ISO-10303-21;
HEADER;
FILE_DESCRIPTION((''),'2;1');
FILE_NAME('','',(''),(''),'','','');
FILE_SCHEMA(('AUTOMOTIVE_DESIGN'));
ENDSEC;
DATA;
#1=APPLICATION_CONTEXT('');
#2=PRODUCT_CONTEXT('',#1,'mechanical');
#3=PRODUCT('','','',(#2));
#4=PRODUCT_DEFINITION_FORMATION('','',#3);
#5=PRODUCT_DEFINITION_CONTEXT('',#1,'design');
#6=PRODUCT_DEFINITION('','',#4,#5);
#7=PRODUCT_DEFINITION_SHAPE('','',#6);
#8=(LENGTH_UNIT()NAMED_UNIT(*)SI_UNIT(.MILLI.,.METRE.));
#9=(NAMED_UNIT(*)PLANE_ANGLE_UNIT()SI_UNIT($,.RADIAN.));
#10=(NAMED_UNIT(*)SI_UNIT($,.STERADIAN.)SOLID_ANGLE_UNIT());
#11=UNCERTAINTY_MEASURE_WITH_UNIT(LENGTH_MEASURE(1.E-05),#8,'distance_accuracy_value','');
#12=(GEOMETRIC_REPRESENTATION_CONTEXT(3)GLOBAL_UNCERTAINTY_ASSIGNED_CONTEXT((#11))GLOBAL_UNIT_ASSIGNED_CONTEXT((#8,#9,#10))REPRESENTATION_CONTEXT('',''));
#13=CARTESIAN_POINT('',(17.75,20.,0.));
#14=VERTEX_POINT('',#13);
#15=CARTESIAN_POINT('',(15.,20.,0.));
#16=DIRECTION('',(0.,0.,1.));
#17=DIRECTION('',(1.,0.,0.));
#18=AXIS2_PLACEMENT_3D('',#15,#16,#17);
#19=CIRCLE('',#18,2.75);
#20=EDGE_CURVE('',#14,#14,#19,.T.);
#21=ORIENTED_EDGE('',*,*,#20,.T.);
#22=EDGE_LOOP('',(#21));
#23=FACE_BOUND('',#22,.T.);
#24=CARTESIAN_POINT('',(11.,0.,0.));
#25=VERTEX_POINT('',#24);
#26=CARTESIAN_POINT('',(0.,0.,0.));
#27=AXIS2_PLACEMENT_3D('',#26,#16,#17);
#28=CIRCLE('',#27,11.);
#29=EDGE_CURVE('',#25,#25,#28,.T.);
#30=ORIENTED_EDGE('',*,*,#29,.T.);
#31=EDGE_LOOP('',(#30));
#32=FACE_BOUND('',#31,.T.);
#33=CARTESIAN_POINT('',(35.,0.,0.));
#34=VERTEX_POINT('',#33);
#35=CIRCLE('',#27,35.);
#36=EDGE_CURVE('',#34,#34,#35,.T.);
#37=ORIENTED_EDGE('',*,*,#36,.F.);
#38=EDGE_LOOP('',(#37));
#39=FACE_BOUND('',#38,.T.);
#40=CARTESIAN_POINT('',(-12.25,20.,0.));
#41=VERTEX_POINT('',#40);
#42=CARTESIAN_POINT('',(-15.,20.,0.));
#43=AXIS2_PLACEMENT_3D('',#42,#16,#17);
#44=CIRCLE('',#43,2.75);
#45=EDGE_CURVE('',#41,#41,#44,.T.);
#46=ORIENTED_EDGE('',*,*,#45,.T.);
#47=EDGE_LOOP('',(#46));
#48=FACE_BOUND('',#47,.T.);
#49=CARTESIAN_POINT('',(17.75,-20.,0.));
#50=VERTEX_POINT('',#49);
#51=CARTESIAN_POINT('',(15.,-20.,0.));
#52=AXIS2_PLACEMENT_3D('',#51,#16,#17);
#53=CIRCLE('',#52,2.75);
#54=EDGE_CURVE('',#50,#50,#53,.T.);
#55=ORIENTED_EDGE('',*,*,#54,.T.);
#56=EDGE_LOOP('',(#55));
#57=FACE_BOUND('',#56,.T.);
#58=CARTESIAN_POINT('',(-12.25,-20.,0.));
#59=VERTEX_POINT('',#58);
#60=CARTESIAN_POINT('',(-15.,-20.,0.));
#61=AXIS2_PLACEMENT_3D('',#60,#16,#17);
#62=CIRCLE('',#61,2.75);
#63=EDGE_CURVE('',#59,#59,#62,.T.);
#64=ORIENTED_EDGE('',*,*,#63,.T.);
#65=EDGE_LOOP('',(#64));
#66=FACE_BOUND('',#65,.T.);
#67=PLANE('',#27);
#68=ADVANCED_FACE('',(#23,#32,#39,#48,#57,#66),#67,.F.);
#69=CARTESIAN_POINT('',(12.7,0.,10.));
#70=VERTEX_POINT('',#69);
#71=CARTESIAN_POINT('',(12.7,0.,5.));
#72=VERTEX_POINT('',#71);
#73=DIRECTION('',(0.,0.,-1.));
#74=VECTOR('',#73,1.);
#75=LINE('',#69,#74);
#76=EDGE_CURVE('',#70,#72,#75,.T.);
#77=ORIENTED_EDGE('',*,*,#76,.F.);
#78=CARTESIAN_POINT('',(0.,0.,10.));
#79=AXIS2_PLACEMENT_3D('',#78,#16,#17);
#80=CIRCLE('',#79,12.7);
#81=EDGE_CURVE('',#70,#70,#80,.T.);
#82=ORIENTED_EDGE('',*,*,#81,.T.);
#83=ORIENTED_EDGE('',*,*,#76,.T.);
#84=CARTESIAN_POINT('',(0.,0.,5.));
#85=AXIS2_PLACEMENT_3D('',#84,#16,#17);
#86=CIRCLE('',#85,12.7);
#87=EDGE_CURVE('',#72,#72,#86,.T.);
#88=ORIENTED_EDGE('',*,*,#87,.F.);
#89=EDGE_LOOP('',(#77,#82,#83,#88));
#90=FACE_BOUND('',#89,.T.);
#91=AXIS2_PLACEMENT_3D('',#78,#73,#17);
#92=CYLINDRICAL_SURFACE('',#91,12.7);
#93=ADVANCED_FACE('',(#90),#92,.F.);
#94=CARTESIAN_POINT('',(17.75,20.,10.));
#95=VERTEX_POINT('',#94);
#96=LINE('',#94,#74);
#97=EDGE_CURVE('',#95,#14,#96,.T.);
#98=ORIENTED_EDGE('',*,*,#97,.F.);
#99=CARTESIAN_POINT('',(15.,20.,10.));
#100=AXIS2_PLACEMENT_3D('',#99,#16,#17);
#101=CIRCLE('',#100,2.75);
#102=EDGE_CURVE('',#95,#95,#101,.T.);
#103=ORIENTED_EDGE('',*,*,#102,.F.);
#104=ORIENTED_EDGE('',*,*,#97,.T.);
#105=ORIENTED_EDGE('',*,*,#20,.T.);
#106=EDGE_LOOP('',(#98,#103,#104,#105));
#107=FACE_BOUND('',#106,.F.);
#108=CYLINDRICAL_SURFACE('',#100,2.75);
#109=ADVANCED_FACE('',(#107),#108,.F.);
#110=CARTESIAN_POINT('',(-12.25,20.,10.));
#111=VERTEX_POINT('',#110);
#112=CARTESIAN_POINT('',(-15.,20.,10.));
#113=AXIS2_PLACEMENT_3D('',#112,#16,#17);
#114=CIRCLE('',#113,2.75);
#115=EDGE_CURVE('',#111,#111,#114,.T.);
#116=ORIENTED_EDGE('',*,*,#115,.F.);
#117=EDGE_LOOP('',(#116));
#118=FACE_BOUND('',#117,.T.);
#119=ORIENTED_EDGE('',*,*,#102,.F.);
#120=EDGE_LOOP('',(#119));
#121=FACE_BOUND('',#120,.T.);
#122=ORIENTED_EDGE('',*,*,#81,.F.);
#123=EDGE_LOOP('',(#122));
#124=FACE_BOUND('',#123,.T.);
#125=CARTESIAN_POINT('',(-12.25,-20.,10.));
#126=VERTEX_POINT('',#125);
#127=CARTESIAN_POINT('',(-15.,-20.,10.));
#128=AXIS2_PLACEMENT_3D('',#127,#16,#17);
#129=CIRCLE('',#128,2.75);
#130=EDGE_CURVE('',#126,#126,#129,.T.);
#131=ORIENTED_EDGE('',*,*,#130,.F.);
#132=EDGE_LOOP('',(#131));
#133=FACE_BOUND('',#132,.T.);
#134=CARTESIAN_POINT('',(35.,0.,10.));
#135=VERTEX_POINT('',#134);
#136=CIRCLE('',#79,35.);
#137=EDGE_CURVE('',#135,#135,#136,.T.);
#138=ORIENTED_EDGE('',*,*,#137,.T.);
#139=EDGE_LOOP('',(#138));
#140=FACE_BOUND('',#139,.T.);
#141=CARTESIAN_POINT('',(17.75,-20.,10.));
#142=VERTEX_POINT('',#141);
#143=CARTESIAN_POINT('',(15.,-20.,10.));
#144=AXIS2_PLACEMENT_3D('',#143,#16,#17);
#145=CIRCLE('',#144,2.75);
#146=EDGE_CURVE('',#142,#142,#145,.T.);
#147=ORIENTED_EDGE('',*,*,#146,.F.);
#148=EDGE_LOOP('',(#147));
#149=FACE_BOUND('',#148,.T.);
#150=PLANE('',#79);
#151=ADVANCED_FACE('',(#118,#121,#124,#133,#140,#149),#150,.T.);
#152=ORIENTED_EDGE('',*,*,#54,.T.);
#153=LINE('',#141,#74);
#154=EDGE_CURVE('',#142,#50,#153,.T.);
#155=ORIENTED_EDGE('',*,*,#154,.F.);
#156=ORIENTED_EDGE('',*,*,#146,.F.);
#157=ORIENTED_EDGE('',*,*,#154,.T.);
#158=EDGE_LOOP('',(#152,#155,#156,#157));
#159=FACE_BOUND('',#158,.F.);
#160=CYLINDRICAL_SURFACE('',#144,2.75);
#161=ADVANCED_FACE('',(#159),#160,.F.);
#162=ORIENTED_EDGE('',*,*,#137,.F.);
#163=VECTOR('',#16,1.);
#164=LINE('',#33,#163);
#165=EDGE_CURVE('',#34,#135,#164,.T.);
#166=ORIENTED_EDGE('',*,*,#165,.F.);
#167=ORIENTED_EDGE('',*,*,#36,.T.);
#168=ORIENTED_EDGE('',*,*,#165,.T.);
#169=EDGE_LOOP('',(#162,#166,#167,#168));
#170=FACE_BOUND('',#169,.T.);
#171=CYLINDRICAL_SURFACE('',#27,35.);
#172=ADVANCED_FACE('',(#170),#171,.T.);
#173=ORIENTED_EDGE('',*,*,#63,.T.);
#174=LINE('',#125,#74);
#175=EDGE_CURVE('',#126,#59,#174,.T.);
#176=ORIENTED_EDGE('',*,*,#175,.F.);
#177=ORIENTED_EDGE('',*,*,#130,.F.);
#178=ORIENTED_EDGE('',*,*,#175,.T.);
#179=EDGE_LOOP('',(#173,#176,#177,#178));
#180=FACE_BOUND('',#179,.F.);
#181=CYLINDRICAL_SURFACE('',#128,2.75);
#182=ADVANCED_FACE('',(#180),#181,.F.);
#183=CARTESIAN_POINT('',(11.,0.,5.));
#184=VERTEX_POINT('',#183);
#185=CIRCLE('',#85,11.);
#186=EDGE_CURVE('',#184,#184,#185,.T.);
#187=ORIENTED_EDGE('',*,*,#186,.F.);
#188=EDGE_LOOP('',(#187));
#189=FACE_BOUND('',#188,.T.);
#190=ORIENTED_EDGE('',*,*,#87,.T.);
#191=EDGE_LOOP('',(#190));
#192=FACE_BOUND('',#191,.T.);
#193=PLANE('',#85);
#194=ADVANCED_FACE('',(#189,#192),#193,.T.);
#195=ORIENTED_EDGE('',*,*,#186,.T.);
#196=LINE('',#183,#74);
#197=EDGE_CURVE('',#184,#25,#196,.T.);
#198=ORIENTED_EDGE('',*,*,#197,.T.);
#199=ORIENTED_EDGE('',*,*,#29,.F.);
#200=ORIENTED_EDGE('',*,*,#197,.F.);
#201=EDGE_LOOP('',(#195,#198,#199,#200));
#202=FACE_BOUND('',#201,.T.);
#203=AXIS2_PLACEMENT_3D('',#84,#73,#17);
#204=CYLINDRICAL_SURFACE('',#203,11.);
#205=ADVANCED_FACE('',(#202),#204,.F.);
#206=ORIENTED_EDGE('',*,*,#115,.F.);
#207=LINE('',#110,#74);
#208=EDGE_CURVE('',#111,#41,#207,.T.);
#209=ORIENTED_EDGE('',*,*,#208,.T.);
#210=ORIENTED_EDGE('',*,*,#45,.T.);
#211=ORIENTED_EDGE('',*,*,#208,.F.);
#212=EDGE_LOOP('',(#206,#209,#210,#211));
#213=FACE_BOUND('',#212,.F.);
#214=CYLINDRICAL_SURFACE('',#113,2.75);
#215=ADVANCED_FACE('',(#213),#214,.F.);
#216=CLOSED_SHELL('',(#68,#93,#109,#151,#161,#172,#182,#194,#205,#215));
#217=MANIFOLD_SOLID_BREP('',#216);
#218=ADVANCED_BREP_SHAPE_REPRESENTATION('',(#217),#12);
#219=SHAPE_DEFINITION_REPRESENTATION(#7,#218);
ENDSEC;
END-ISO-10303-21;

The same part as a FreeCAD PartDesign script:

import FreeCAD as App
import Part
import Sketcher
from FreeCAD import Vector

doc = App.newDocument("Part")
body = doc.addObject("PartDesign::Body", "Body")

# Sketch on XZ plane
sketch1 = body.newObject("Sketcher::SketchObject", "Sketch")
sketch1.AttachmentSupport = (doc.getObject("XZ_Plane"), [""])
sketch1.MapMode = "FlatFace"
sketch1.addGeometry(Part.LineSegment(Vector(11, 5, 0), Vector(11, 0, 0)), False)
sketch1.addGeometry(Part.LineSegment(Vector(11, 0, 0), Vector(35, 0, 0)), False)
sketch1.addGeometry(Part.LineSegment(Vector(35, 0, 0), Vector(35, 10, 0)), False)
sketch1.addGeometry(Part.LineSegment(Vector(35, 10, 0), Vector(12.7, 10, 0)), False)
sketch1.addGeometry(Part.LineSegment(Vector(12.7, 10, 0), Vector(12.7, 5, 0)), False)
sketch1.addGeometry(Part.LineSegment(Vector(12.7, 5, 0), Vector(11, 5, 0)), False)
sketch1.addConstraint(Sketcher.Constraint("Coincident", 0, 2, 1, 1))
sketch1.addConstraint(Sketcher.Constraint("Coincident", 1, 2, 2, 1))
sketch1.addConstraint(Sketcher.Constraint("Coincident", 2, 2, 3, 1))
sketch1.addConstraint(Sketcher.Constraint("Coincident", 3, 2, 4, 1))
sketch1.addConstraint(Sketcher.Constraint("Coincident", 4, 2, 5, 1))
sketch1.addConstraint(Sketcher.Constraint("Coincident", 5, 2, 0, 1))
sketch1.addConstraint(Sketcher.Constraint("Vertical", 0))
sketch1.addConstraint(Sketcher.Constraint("Horizontal", 1))
sketch1.addConstraint(Sketcher.Constraint("Vertical", 2))
sketch1.addConstraint(Sketcher.Constraint("Horizontal", 3))
sketch1.addConstraint(Sketcher.Constraint("Vertical", 4))
sketch1.addConstraint(Sketcher.Constraint("Horizontal", 5))
sketch1.addConstraint(Sketcher.Constraint("PointOnObject", 0, 2, -1))
sketch1.addConstraint(Sketcher.Constraint("Equal", 0, 4))
sketch1.addConstraint(Sketcher.Constraint("DistanceX", 1, 1, 1, 2, 24.0))
sketch1.addConstraint(Sketcher.Constraint("DistanceY", 0, 2, 0, 1, 5.0))
sketch1.addConstraint(Sketcher.Constraint("DistanceX", 3, 2, 3, 1, 22.3))
sketch1.addConstraint(Sketcher.Constraint("DistanceX", -1, 1, 0, 2, 11.0))
revolution = body.newObject("PartDesign::Revolution", "Revolution")
revolution.Profile = sketch1
revolution.ReferenceAxis = (sketch1, ["V_Axis"])
revolution.Angle = 360

# Sketch on XY plane
sketch2 = body.newObject("Sketcher::SketchObject", "Sketch001")
sketch2.AttachmentSupport = (doc.getObject("XY_Plane"), [""])
sketch2.MapMode = "FlatFace"
sketch2.AttachmentOffset = App.Placement(Vector(0, 0, 10), App.Rotation())
sketch2.addGeometry(Part.Circle(Vector(-15, 20, 0), Vector(0, 0, 1), 2.75), False)
sketch2.addGeometry(Part.Circle(Vector(-15, -20, 0), Vector(0, 0, 1), 2.75), False)
sketch2.addGeometry(Part.Circle(Vector(15, -20, 0), Vector(0, 0, 1), 2.75), False)
sketch2.addGeometry(Part.Circle(Vector(15, 20, 0), Vector(0, 0, 1), 2.75), False)
sketch2.addConstraint(Sketcher.Constraint("Equal", 0, 1))
sketch2.addConstraint(Sketcher.Constraint("Equal", 1, 2))
sketch2.addConstraint(Sketcher.Constraint("Equal", 2, 3))
sketch2.addConstraint(Sketcher.Constraint("Symmetric", 0, 3, 2, 3, -1, 1))
sketch2.addConstraint(Sketcher.Constraint("Symmetric", 1, 3, 3, 3, -1, 1))
sketch2.addConstraint(Sketcher.Constraint("Symmetric", 1, 3, 2, 3, -2))
sketch2.addConstraint(Sketcher.Constraint("Diameter", 0, 5.5))
sketch2.addConstraint(Sketcher.Constraint("DistanceX", 0, 3, -1, 1, 15.0))
sketch2.addConstraint(Sketcher.Constraint("DistanceY", -1, 1, 0, 3, 20.0))
pocket1 = body.newObject("PartDesign::Pocket", "Pocket")
pocket1.Profile = sketch2
pocket1.Length = 10

doc.recompute()
